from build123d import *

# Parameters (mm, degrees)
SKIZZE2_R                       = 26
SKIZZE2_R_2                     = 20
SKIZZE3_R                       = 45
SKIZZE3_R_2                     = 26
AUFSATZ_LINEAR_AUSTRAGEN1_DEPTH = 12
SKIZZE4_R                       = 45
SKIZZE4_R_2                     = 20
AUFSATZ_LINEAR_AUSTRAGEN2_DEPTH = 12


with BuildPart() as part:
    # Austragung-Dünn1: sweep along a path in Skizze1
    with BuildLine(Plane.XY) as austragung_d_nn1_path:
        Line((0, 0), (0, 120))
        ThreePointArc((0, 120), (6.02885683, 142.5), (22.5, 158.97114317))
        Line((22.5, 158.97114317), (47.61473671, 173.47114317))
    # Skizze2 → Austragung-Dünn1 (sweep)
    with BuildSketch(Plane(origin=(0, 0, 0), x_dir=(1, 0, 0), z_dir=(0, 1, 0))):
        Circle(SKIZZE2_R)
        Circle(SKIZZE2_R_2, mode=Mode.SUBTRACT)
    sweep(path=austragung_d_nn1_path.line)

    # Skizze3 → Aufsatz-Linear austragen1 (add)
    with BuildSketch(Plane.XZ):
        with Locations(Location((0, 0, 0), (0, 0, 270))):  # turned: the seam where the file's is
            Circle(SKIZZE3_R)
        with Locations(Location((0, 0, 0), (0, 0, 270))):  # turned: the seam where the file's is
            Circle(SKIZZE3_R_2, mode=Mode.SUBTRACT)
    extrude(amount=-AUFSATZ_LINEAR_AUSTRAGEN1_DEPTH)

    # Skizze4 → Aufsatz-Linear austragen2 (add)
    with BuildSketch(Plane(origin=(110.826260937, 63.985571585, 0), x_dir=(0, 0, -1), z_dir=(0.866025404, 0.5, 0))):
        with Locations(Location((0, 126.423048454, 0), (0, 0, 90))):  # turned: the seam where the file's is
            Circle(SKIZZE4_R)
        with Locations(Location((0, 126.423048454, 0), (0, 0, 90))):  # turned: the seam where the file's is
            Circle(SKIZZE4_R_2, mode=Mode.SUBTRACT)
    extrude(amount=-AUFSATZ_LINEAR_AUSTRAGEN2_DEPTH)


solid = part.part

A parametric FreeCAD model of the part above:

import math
import FreeCAD as App
import Part
import Sketcher
Q = App.Units.Quantity

doc = App.newDocument("Part")
body = doc.addObject("PartDesign::Body", "Body")

# Sketch on XZ plane
sketch1 = doc.addObject("Sketcher::SketchObject", "Sketch")
body.addObject(sketch1)
sketch1.AttachmentSupport = (doc.XZ_Plane, [""])
sketch1.MapMode = "FlatFace"
sketch1.addGeometry([
    Part.Circle(App.Vector(0, 0, 0), App.Vector(0, 0, 1), 26),
    Part.Circle(App.Vector(0, 0, 0), App.Vector(0, 0, 1), 20),
], False)
sketch1.addConstraint([
    Sketcher.Constraint("Coincident", 0, 3, -1, 1),
    Sketcher.Constraint("Coincident", 1, 3, -1, 1),
    Sketcher.Constraint("Diameter", 0, 52.0),
    Sketcher.Constraint("Diameter", 1, 40.0),
])

# Sketch on XY plane
sketch2 = doc.addObject("Sketcher::SketchObject", "Sketch001")
body.addObject(sketch2)
sketch2.AttachmentSupport = (doc.XY_Plane, [""])
sketch2.MapMode = "FlatFace"
sketch2.addGeometry([
    Part.LineSegment(App.Vector(0, 0, 0), App.Vector(0, 120, 0)),
    Part.ArcOfCircle(Part.Circle(App.Vector(45, 120, 0), App.Vector(0, 0, 1), 45), math.radians(120), math.radians(180)),
    Part.LineSegment(App.Vector(22.5, 158.971143, 0), App.Vector(47.614737, 173.471143, 0)),
], False)
sketch2.addConstraint([
    Sketcher.Constraint("Tangent", 0, 2, 1, 2),
    Sketcher.Constraint("Tangent", 1, 1, 2, 1),
    Sketcher.Constraint("Vertical", 0),
    Sketcher.Constraint("Coincident", 0, 1, -1, 1),
    Sketcher.Constraint("Radius", 1, 45.0),
    Sketcher.Constraint("DistanceY", 0, 1, 0, 2, 120.0),
    Sketcher.Constraint("Angle", 2, Q("30 deg")),
    Sketcher.Constraint("Distance", 2, 29.0),
])
doc.recompute()

additivepipe = doc.addObject("PartDesign::AdditivePipe", "AdditivePipe")
body.addObject(additivepipe)
additivepipe.Profile = sketch1
additivepipe.Spine = (sketch2, ["Edge1", "Edge2", "Edge3"])

# Sketch on XZ plane
sketch3 = doc.addObject("Sketcher::SketchObject", "Sketch002")
body.addObject(sketch3)
sketch3.AttachmentSupport = (doc.XZ_Plane, [""])
sketch3.MapMode = "FlatFace"
sketch3.addGeometry([
    Part.Circle(App.Vector(0, 0, 0), App.Vector(0, 0, 1), 45),
    Part.Circle(App.Vector(0, 0, 0), App.Vector(0, 0, 1), 26),
], False)
sketch3.addConstraint([
    Sketcher.Constraint("Coincident", 0, 3, -1, 1),
    Sketcher.Constraint("Coincident", 1, 3, -1, 1),
    Sketcher.Constraint("Diameter", 0, 90.0),
    Sketcher.Constraint("Diameter", 1, 52.0),
])
pad1 = doc.addObject("PartDesign::Pad", "Pad")
body.addObject(pad1)
pad1.Profile = sketch3
pad1.Length = 12
pad1.Reversed = True

# Sketch on an angled plane
sketch4 = doc.addObject("Sketcher::SketchObject", "Sketch003")
body.addObject(sketch4)
sketch4.Placement = App.Placement(App.Vector(110.826261, 63.985572, 0), App.Rotation(App.Vector(0, 0, -1), App.Vector(-0.5, 0.866025404, 0), App.Vector(0.866025404, 0.5, 0), "ZXY"))
sketch4.addGeometry([
    Part.Circle(App.Vector(0, 126.423049, 0), App.Vector(0, 0, 1), 45),
    Part.Circle(App.Vector(0, 126.423049, 0), App.Vector(0, 0, 1), 20),
], False)
sketch4.addConstraint([
    Sketcher.Constraint("Coincident", 1, 3, 0, 3),
    Sketcher.Constraint("PointOnObject", 0, 3, -2),
    Sketcher.Constraint("Diameter", 0, 90.0),
    Sketcher.Constraint("Diameter", 1, 40.0),
    Sketcher.Constraint("DistanceY", -1, 1, 0, 3, 126.423049),
])
pad2 = doc.addObject("PartDesign::Pad", "Pad001")
body.addObject(pad2)
pad2.Profile = sketch4
pad2.Length = 12
pad2.Reversed = True

doc.recompute()
